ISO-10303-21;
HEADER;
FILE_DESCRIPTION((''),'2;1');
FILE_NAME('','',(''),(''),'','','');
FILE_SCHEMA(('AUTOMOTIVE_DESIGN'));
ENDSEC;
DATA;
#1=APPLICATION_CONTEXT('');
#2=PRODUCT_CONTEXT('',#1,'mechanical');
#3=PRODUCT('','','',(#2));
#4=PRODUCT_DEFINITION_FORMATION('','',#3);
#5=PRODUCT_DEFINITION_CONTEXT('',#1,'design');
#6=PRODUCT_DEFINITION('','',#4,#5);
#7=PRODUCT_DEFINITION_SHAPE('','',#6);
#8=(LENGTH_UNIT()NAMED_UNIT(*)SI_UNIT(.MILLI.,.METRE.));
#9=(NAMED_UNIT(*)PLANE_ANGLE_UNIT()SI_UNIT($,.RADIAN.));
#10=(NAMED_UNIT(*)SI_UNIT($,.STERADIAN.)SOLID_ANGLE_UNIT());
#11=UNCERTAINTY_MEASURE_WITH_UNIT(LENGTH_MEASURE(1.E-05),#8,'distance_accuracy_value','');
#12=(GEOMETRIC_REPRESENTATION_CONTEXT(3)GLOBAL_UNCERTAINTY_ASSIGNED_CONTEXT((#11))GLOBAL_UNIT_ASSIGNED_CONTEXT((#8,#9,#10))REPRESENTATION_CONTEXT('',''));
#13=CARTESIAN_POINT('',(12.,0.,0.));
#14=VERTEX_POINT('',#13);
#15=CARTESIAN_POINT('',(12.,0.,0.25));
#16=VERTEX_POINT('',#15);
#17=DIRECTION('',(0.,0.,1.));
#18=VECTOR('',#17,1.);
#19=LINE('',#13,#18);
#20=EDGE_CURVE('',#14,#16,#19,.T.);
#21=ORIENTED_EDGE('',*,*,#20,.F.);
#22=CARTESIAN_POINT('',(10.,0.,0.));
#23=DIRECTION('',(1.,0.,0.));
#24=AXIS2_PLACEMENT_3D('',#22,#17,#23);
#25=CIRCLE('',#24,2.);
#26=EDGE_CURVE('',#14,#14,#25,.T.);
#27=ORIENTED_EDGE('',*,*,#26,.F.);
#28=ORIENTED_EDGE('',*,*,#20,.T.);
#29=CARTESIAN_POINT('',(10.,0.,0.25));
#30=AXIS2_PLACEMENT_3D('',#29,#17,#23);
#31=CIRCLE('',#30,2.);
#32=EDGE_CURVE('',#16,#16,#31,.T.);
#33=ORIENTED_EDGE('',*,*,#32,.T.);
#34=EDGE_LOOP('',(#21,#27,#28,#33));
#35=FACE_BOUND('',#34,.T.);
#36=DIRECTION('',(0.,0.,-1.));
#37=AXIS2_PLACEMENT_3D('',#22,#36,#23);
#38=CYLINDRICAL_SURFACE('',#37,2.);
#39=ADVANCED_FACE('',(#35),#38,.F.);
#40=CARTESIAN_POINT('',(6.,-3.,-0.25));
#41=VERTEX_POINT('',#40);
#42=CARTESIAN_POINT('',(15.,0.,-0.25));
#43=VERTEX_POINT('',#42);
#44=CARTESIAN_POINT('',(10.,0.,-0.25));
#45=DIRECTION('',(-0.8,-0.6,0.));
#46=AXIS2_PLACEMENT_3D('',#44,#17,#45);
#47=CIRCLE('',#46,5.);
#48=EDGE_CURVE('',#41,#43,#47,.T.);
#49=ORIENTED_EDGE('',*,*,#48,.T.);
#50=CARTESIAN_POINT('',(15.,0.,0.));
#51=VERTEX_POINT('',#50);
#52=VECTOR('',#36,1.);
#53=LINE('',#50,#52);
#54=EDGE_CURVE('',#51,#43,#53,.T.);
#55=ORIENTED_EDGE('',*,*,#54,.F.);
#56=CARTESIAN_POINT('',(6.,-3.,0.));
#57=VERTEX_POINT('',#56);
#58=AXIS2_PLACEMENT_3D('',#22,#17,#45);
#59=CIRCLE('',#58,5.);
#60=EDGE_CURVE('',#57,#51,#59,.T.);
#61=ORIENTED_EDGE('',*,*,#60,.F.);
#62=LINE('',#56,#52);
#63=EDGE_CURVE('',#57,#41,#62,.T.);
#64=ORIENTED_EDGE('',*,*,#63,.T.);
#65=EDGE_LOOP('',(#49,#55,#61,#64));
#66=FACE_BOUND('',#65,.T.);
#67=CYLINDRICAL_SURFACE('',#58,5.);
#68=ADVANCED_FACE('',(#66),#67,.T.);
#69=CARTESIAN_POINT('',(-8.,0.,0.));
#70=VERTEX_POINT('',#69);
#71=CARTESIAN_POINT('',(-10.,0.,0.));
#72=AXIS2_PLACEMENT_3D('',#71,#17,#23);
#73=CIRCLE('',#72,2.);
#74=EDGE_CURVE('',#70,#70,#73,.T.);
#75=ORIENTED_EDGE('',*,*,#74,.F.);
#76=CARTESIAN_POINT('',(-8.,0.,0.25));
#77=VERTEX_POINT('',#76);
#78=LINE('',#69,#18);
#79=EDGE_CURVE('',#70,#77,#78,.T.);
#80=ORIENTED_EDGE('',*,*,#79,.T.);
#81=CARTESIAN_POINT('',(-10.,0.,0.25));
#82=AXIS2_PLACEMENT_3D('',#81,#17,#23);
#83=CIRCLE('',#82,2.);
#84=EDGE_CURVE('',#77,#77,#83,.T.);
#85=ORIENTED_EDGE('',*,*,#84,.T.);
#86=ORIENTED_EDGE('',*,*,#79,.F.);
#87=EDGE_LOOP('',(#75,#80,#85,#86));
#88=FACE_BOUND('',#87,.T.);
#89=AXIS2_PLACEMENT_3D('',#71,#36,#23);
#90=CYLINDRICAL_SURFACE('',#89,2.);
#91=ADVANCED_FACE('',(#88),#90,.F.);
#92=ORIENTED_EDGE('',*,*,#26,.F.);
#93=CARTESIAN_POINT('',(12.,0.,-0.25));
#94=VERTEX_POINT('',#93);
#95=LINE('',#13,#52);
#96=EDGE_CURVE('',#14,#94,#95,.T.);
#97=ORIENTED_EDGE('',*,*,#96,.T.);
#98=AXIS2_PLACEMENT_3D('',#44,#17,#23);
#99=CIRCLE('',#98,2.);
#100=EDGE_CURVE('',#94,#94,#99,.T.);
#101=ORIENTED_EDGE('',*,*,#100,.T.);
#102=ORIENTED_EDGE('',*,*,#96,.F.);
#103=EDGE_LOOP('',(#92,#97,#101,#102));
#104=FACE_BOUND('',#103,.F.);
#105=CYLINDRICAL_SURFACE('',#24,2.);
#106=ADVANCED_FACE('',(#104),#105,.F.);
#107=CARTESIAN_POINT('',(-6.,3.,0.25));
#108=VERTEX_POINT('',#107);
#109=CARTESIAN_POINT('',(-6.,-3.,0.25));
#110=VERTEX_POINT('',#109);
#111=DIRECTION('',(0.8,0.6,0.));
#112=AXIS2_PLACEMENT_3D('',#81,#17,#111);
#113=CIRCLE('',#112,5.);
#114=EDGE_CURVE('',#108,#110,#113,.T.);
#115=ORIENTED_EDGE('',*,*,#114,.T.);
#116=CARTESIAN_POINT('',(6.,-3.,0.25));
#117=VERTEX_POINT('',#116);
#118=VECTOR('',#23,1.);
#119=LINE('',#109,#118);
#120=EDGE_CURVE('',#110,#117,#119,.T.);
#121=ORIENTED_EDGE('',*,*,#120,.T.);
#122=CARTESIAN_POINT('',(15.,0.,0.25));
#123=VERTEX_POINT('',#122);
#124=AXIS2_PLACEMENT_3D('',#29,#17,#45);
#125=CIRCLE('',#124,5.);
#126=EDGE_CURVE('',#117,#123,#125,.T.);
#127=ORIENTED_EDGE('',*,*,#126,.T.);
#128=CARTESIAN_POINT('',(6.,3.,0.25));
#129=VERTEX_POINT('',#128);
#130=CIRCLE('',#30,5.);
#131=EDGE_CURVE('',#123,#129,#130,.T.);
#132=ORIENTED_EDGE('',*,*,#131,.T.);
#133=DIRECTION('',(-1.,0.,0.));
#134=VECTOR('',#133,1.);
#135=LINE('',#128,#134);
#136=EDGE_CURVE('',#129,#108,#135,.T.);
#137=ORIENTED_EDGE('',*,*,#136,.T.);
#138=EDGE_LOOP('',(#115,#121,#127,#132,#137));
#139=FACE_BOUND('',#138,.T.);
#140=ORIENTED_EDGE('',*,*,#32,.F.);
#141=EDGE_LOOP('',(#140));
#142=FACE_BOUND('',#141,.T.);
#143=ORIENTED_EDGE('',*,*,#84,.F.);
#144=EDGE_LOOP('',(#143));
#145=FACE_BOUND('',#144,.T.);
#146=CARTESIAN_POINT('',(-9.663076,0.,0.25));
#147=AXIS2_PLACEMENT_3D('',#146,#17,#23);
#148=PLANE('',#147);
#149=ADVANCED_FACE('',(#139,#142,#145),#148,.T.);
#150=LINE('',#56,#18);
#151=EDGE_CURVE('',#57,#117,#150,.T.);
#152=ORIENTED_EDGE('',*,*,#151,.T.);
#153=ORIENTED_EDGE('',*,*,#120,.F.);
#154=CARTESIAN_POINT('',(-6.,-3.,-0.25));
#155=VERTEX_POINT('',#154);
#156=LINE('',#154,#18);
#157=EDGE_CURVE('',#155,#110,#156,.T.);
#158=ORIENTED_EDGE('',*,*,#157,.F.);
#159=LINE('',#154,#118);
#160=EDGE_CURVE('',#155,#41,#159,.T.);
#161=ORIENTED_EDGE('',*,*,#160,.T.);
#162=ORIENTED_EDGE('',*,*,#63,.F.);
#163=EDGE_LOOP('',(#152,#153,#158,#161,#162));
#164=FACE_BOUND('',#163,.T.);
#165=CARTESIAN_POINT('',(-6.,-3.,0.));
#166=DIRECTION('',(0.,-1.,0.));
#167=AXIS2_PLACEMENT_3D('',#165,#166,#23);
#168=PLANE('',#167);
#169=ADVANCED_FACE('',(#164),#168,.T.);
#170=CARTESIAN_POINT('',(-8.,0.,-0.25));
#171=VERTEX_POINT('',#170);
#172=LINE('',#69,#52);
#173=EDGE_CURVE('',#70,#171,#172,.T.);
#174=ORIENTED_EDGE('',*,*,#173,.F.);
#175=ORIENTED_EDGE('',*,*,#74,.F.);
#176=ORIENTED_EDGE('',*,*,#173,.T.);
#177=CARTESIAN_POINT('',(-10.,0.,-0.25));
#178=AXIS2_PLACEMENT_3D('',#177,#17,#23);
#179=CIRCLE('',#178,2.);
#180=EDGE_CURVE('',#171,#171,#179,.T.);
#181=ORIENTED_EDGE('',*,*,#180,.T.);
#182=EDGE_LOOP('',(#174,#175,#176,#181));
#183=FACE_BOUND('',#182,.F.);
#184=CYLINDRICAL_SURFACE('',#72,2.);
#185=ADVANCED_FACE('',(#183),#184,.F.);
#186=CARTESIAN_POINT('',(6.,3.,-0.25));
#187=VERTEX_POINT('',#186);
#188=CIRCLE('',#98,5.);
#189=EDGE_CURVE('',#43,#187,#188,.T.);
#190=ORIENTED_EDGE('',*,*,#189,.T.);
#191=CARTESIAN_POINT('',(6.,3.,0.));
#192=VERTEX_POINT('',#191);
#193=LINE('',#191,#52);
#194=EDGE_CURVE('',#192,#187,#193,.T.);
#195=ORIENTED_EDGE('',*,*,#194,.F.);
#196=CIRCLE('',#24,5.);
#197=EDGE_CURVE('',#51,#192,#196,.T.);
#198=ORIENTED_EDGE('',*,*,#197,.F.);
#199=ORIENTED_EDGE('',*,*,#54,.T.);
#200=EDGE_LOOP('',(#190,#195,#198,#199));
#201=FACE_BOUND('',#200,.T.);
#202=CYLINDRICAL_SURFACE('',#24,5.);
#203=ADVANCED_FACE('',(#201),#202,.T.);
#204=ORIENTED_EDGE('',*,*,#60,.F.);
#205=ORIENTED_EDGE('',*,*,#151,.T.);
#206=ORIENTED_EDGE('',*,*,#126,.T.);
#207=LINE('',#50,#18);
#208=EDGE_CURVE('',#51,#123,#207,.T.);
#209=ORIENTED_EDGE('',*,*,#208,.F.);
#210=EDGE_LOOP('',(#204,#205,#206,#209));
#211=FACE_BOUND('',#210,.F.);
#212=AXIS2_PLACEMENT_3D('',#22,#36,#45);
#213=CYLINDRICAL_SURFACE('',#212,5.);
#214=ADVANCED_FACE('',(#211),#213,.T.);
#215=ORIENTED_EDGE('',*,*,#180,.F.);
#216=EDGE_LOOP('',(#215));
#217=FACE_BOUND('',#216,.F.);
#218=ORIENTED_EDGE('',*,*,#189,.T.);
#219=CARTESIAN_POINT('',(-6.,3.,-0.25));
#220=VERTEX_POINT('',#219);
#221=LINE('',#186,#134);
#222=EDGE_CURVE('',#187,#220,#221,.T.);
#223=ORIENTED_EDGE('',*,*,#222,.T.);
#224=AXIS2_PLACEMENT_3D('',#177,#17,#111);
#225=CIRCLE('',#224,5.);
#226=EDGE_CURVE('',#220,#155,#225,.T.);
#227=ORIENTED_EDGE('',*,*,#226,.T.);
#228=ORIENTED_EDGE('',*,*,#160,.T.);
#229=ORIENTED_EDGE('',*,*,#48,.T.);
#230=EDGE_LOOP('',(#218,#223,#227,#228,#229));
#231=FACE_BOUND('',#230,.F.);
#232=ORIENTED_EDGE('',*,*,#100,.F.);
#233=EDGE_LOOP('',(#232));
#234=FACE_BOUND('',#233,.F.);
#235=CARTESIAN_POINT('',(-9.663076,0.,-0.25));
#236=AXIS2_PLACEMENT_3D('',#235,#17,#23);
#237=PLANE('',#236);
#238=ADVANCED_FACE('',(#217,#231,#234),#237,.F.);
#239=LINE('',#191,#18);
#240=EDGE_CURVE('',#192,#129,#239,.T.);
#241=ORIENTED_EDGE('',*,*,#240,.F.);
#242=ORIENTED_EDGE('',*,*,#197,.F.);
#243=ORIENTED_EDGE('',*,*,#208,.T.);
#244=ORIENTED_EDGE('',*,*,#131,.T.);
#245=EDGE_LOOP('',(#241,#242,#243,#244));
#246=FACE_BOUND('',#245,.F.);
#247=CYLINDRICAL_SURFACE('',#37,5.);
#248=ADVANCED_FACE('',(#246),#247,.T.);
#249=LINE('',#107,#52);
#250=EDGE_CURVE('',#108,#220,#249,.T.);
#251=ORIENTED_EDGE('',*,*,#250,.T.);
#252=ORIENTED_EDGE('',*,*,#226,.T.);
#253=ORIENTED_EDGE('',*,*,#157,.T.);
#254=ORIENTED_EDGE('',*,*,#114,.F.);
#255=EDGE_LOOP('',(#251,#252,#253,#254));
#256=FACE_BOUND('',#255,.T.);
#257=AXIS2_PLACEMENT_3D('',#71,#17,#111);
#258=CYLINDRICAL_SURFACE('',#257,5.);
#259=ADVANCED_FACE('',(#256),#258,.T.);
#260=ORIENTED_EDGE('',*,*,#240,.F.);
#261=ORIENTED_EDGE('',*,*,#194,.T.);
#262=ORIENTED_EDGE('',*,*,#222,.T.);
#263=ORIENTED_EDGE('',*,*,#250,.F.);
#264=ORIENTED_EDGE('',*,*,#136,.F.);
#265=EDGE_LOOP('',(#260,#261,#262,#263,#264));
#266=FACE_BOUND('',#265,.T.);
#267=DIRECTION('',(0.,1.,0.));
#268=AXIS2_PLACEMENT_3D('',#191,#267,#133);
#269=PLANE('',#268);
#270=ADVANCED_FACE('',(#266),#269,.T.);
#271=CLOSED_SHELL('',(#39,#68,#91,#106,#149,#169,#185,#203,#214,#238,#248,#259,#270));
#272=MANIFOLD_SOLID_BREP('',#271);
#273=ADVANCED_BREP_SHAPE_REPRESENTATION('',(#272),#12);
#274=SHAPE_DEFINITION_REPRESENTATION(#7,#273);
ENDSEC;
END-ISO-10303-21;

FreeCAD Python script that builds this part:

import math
import FreeCAD as App
import Part
import Sketcher

doc = App.newDocument("Part")
params = doc.addObject("Spreadsheet::Sheet", "Params")
for row, (alias, value) in enumerate([
    ("sketch1_diameter", "4 mm"),
    ("sketch1_radius", "5 mm"),
    ("sketch1_width", "12 mm"),
    ("pad1_length", "0.5 mm"),
], start=1):
    params.set(f"A{row}", alias)
    params.set(f"B{row}", "=" + value)
    params.setAlias(f"B{row}", alias)

body = doc.addObject("PartDesign::Body", "Body")

sketch1 = doc.addObject("Sketcher::SketchObject", "Sketch")
body.addObject(sketch1)
sketch1.AttachmentSupport = (doc.XY_Plane, [""])
sketch1.MapMode = "FlatFace"
sketch1.addGeometry([
    Part.ArcOfCircle(Part.Circle(App.Vector(-10, 0, 0), App.Vector(0, 0, 1), 5), math.radians(37), math.radians(323)),
    Part.LineSegment(App.Vector(-6, -3, 0), App.Vector(6, -3, 0)),
    Part.ArcOfCircle(Part.Circle(App.Vector(10, 0, 0), App.Vector(0, 0, 1), 5), math.radians(-143), math.radians(0)),
    Part.ArcOfCircle(Part.Circle(App.Vector(10, 0, 0), App.Vector(0, 0, 1), 5), math.radians(0), math.radians(143)),
    Part.LineSegment(App.Vector(6, 3, 0), App.Vector(-6, 3, 0)),
    Part.Circle(App.Vector(-10, 0, 0), App.Vector(0, 0, 1), 2),
    Part.Circle(App.Vector(10, 0, 0), App.Vector(0, 0, 1), 2),
], False)
sketch1.addConstraint([
    Sketcher.Constraint("Coincident", 0, 2, 1, 1),
    Sketcher.Constraint("Coincident", 1, 2, 2, 1),
    Sketcher.Constraint("Tangent", 2, 2, 3, 1),
    Sketcher.Constraint("Coincident", 3, 2, 4, 1),
    Sketcher.Constraint("Coincident", 4, 2, 0, 1),
    Sketcher.Constraint("Horizontal", 1),
    Sketcher.Constraint("Horizontal", 4),
    Sketcher.Constraint("Coincident", 5, 3, 0, 3),
    Sketcher.Constraint("Coincident", 6, 3, 2, 3),
    Sketcher.Constraint("Equal", 0, 2),
    Sketcher.Constraint("Equal", 2, 3),
    Sketcher.Constraint("Equal", 5, 6),
    Sketcher.Constraint("Symmetric", 0, 3, 2, 3, -1, 1),
    Sketcher.Constraint("Symmetric", 1, 2, 3, 2, -1),
    Sketcher.Constraint("PointOnObject", 2, 2, -1),
    Sketcher.Constraint("Diameter", 5, 4.0),
    Sketcher.Constraint("Radius", 0, 5.0),
    Sketcher.Constraint("DistanceX", 1, 1, 1, 2, 12.0),
    Sketcher.Constraint("DistanceX", 0, 3, -1, 1, 10.0),
])
sketch1.setExpression("Constraints[15]", "Params.sketch1_diameter")
sketch1.setExpression("Constraints[16]", "Params.sketch1_radius")
sketch1.setExpression("Constraints[17]", "Params.sketch1_width")
pad1 = doc.addObject("PartDesign::Pad", "Pad")
body.addObject(pad1)
pad1.Profile = sketch1
pad1.setExpression("Length", "Params.pad1_length")
pad1.Midplane = True

doc.recompute()
